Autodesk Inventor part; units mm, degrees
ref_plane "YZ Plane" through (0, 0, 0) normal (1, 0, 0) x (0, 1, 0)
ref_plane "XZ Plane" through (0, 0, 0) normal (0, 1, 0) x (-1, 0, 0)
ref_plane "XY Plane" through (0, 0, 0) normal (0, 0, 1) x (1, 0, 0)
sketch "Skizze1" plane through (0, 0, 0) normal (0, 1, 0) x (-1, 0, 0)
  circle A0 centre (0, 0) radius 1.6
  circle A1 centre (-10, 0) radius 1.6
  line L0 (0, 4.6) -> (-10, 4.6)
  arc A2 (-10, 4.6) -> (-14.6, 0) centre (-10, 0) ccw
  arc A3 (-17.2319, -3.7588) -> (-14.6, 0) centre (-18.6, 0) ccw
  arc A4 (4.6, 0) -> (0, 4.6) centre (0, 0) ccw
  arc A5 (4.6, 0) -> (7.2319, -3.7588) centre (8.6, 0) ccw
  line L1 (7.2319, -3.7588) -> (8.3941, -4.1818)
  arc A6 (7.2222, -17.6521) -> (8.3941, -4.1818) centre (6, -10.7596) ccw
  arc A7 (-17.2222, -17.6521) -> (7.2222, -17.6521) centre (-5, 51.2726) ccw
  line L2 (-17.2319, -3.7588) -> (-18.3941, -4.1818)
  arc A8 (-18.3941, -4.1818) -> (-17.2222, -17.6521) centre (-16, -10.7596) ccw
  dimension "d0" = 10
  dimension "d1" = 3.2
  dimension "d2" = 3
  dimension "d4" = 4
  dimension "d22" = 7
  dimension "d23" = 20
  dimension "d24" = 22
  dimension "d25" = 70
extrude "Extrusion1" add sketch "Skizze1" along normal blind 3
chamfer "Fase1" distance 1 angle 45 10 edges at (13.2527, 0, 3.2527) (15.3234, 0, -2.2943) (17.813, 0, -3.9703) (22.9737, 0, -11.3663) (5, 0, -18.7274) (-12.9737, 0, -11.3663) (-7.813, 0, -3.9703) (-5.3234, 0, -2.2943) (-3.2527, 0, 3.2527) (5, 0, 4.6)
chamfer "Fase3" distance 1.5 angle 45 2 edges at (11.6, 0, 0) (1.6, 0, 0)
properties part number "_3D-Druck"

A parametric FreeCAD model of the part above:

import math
import FreeCAD as App
import Part
import Sketcher

V = App.Vector
Q = App.Units.Quantity


def edges_at(feature, points):
    """Names of the edges that pass closest to the given points."""
    edges = feature.Shape.Edges
    near = lambda p: min(range(len(edges)), key=lambda i: edges[i].distToShape(Part.Vertex(*p))[0])
    return sorted({f"Edge{near(p) + 1}" for p in points})

doc = App.newDocument("Part")
params = doc.addObject("Spreadsheet::Sheet", "Params")
for row, (alias, value) in enumerate([
    ("sketch1_radius", "4 mm"),
    ("sketch1_radius2", "7 mm"),
    ("sketch1_radius3", "70 mm"),
    ("sketch1_diameter", "3.2 mm"),
    ("sketch1_width", "10 mm"),
    ("pad1_length", "3 mm"),
    ("chamfer_size", "1 mm"),
    ("chamfer2_size", "1.5 mm"),
], start=1):
    params.set(f"A{row}", alias)
    params.set(f"B{row}", "=" + value)
    params.setAlias(f"B{row}", alias)

body = doc.addObject("PartDesign::Body", "Body")

sketch1 = body.newObject("Sketcher::SketchObject", "Sketch")
sketch1.AttachmentSupport = (doc.getObject("XZ_Plane"), [""])
sketch1.MapMode = "FlatFace"
sketch1.addGeometry([
    Part.ArcOfCircle(Part.Circle(V(0, 0, 0), V(0, 0, 1), 4.6), math.radians(90), math.radians(180)),
    Part.LineSegment(V(0, 4.6, 0), V(10, 4.6, 0)),
    Part.ArcOfCircle(Part.Circle(V(10, 0, 0), V(0, 0, 1), 4.6), math.radians(0), math.radians(90)),
    Part.ArcOfCircle(Part.Circle(V(18.6, 0, 0), V(0, 0, 1), 4.000034), math.radians(180), math.radians(249.999883)),
    Part.LineSegment(V(17.2319, -3.7588, 0), V(18.3941, -4.1818, 0)),
    Part.ArcOfCircle(Part.Circle(V(16, -10.7596, 0), V(0, 0, 1), 6.999941), math.radians(-79.944653), math.radians(70.00018)),
    Part.ArcOfCircle(Part.Circle(V(5, 51.2726, 0), V(0, 0, 1), 69.999975), math.radians(-100.055551), math.radians(-79.944449)),
    Part.ArcOfCircle(Part.Circle(V(-6, -10.7596, 0), V(0, 0, 1), 7.000024), math.radians(109.99982), math.radians(259.944653)),
    Part.LineSegment(V(-8.3941, -4.1818, 0), V(-7.2319, -3.7588, 0)),
    Part.ArcOfCircle(Part.Circle(V(-8.6, 0, 0), V(0, 0, 1), 4), math.radians(-69.999883), math.radians(0)),
    Part.Circle(V(10, 0, 0), V(0, 0, 1), 1.6),
    Part.Circle(V(0, 0, 0), V(0, 0, 1), 1.6),
], False)
sketch1.addConstraint([
    Sketcher.Constraint("Tangent", 0, 1, 1, 1),
    Sketcher.Constraint("Tangent", 1, 2, 2, 2),
    Sketcher.Constraint("Tangent", 2, 1, 3, 1),
    Sketcher.Constraint("Tangent", 3, 2, 4, 1),
    Sketcher.Constraint("Tangent", 4, 2, 5, 2),
    Sketcher.Constraint("Tangent", 5, 1, 6, 2),
    Sketcher.Constraint("Tangent", 6, 1, 7, 2),
    Sketcher.Constraint("Tangent", 7, 1, 8, 1),
    Sketcher.Constraint("Tangent", 8, 2, 9, 1),
    Sketcher.Constraint("Tangent", 9, 2, 0, 2),
    Sketcher.Constraint("Horizontal", 1),
    Sketcher.Constraint("Coincident", 0, 3, -1, 1),
    Sketcher.Constraint("Coincident", 11, 3, -1, 1),
    Sketcher.Constraint("Coincident", 10, 3, 2, 3),
    Sketcher.Constraint("Equal", 0, 2),
    Sketcher.Constraint("Equal", 5, 7),
    Sketcher.Constraint("Equal", 3, 9),
    Sketcher.Constraint("Equal", 10, 11),
    Sketcher.Constraint("PointOnObject", 3, 3, -1),
    Sketcher.Constraint("PointOnObject", 9, 3, -1),
    Sketcher.Constraint("Horizontal", 5, 3, 7, 3),
    Sketcher.Constraint("Horizontal", 4, 2, 7, 1),
    Sketcher.Constraint("Radius", 3, 4.0),
    Sketcher.Constraint("Radius", 5, 7.0),
    Sketcher.Constraint("Radius", 6, 70.0),
    Sketcher.Constraint("Diameter", 10, 3.2),
    Sketcher.Constraint("DistanceX", 1, 1, 1, 2, 10.0),
    Sketcher.Constraint("Angle", 4, Q("-19.9997 deg")),
    Sketcher.Constraint("DistanceX", 7, 3, 5, 3, 22.0),
    Sketcher.Constraint("Radius", 0, 4.6),
])
sketch1.setExpression("Constraints[22]", "Params.sketch1_radius")
sketch1.setExpression("Constraints[23]", "Params.sketch1_radius2")
sketch1.setExpression("Constraints[24]", "Params.sketch1_radius3")
sketch1.setExpression("Constraints[25]", "Params.sketch1_diameter")
sketch1.setExpression("Constraints[26]", "Params.sketch1_width")
pad1 = body.newObject("PartDesign::Pad", "Pad")
pad1.Profile = sketch1
pad1.setExpression("Length", "Params.pad1_length")
pad1.Reversed = True
doc.recompute()

chamfer = body.newObject("PartDesign::Chamfer", "Chamfer")
chamfer.Base = (pad1, edges_at(pad1, [
    (13.253, 0, 3.253),
    (15.323, 0, -2.294),
    (17.813, 0, -3.97),
    (22.974, 0, -11.366),
    (5, 0, -18.727),
    (-12.974, 0, -11.366),
    (-7.813, 0, -3.97),
    (-5.323, 0, -2.294),
    (-3.253, 0, 3.253),
    (5, 0, 4.6),
]))
chamfer.setExpression("Size", "Params.chamfer_size")
doc.recompute()

chamfer2 = body.newObject("PartDesign::Chamfer", "Chamfer001")
chamfer2.Base = (chamfer, edges_at(chamfer, [(11.6, 0, 0), (1.6, 0, 0)]))
chamfer2.setExpression("Size", "Params.chamfer2_size")

doc.recompute()
